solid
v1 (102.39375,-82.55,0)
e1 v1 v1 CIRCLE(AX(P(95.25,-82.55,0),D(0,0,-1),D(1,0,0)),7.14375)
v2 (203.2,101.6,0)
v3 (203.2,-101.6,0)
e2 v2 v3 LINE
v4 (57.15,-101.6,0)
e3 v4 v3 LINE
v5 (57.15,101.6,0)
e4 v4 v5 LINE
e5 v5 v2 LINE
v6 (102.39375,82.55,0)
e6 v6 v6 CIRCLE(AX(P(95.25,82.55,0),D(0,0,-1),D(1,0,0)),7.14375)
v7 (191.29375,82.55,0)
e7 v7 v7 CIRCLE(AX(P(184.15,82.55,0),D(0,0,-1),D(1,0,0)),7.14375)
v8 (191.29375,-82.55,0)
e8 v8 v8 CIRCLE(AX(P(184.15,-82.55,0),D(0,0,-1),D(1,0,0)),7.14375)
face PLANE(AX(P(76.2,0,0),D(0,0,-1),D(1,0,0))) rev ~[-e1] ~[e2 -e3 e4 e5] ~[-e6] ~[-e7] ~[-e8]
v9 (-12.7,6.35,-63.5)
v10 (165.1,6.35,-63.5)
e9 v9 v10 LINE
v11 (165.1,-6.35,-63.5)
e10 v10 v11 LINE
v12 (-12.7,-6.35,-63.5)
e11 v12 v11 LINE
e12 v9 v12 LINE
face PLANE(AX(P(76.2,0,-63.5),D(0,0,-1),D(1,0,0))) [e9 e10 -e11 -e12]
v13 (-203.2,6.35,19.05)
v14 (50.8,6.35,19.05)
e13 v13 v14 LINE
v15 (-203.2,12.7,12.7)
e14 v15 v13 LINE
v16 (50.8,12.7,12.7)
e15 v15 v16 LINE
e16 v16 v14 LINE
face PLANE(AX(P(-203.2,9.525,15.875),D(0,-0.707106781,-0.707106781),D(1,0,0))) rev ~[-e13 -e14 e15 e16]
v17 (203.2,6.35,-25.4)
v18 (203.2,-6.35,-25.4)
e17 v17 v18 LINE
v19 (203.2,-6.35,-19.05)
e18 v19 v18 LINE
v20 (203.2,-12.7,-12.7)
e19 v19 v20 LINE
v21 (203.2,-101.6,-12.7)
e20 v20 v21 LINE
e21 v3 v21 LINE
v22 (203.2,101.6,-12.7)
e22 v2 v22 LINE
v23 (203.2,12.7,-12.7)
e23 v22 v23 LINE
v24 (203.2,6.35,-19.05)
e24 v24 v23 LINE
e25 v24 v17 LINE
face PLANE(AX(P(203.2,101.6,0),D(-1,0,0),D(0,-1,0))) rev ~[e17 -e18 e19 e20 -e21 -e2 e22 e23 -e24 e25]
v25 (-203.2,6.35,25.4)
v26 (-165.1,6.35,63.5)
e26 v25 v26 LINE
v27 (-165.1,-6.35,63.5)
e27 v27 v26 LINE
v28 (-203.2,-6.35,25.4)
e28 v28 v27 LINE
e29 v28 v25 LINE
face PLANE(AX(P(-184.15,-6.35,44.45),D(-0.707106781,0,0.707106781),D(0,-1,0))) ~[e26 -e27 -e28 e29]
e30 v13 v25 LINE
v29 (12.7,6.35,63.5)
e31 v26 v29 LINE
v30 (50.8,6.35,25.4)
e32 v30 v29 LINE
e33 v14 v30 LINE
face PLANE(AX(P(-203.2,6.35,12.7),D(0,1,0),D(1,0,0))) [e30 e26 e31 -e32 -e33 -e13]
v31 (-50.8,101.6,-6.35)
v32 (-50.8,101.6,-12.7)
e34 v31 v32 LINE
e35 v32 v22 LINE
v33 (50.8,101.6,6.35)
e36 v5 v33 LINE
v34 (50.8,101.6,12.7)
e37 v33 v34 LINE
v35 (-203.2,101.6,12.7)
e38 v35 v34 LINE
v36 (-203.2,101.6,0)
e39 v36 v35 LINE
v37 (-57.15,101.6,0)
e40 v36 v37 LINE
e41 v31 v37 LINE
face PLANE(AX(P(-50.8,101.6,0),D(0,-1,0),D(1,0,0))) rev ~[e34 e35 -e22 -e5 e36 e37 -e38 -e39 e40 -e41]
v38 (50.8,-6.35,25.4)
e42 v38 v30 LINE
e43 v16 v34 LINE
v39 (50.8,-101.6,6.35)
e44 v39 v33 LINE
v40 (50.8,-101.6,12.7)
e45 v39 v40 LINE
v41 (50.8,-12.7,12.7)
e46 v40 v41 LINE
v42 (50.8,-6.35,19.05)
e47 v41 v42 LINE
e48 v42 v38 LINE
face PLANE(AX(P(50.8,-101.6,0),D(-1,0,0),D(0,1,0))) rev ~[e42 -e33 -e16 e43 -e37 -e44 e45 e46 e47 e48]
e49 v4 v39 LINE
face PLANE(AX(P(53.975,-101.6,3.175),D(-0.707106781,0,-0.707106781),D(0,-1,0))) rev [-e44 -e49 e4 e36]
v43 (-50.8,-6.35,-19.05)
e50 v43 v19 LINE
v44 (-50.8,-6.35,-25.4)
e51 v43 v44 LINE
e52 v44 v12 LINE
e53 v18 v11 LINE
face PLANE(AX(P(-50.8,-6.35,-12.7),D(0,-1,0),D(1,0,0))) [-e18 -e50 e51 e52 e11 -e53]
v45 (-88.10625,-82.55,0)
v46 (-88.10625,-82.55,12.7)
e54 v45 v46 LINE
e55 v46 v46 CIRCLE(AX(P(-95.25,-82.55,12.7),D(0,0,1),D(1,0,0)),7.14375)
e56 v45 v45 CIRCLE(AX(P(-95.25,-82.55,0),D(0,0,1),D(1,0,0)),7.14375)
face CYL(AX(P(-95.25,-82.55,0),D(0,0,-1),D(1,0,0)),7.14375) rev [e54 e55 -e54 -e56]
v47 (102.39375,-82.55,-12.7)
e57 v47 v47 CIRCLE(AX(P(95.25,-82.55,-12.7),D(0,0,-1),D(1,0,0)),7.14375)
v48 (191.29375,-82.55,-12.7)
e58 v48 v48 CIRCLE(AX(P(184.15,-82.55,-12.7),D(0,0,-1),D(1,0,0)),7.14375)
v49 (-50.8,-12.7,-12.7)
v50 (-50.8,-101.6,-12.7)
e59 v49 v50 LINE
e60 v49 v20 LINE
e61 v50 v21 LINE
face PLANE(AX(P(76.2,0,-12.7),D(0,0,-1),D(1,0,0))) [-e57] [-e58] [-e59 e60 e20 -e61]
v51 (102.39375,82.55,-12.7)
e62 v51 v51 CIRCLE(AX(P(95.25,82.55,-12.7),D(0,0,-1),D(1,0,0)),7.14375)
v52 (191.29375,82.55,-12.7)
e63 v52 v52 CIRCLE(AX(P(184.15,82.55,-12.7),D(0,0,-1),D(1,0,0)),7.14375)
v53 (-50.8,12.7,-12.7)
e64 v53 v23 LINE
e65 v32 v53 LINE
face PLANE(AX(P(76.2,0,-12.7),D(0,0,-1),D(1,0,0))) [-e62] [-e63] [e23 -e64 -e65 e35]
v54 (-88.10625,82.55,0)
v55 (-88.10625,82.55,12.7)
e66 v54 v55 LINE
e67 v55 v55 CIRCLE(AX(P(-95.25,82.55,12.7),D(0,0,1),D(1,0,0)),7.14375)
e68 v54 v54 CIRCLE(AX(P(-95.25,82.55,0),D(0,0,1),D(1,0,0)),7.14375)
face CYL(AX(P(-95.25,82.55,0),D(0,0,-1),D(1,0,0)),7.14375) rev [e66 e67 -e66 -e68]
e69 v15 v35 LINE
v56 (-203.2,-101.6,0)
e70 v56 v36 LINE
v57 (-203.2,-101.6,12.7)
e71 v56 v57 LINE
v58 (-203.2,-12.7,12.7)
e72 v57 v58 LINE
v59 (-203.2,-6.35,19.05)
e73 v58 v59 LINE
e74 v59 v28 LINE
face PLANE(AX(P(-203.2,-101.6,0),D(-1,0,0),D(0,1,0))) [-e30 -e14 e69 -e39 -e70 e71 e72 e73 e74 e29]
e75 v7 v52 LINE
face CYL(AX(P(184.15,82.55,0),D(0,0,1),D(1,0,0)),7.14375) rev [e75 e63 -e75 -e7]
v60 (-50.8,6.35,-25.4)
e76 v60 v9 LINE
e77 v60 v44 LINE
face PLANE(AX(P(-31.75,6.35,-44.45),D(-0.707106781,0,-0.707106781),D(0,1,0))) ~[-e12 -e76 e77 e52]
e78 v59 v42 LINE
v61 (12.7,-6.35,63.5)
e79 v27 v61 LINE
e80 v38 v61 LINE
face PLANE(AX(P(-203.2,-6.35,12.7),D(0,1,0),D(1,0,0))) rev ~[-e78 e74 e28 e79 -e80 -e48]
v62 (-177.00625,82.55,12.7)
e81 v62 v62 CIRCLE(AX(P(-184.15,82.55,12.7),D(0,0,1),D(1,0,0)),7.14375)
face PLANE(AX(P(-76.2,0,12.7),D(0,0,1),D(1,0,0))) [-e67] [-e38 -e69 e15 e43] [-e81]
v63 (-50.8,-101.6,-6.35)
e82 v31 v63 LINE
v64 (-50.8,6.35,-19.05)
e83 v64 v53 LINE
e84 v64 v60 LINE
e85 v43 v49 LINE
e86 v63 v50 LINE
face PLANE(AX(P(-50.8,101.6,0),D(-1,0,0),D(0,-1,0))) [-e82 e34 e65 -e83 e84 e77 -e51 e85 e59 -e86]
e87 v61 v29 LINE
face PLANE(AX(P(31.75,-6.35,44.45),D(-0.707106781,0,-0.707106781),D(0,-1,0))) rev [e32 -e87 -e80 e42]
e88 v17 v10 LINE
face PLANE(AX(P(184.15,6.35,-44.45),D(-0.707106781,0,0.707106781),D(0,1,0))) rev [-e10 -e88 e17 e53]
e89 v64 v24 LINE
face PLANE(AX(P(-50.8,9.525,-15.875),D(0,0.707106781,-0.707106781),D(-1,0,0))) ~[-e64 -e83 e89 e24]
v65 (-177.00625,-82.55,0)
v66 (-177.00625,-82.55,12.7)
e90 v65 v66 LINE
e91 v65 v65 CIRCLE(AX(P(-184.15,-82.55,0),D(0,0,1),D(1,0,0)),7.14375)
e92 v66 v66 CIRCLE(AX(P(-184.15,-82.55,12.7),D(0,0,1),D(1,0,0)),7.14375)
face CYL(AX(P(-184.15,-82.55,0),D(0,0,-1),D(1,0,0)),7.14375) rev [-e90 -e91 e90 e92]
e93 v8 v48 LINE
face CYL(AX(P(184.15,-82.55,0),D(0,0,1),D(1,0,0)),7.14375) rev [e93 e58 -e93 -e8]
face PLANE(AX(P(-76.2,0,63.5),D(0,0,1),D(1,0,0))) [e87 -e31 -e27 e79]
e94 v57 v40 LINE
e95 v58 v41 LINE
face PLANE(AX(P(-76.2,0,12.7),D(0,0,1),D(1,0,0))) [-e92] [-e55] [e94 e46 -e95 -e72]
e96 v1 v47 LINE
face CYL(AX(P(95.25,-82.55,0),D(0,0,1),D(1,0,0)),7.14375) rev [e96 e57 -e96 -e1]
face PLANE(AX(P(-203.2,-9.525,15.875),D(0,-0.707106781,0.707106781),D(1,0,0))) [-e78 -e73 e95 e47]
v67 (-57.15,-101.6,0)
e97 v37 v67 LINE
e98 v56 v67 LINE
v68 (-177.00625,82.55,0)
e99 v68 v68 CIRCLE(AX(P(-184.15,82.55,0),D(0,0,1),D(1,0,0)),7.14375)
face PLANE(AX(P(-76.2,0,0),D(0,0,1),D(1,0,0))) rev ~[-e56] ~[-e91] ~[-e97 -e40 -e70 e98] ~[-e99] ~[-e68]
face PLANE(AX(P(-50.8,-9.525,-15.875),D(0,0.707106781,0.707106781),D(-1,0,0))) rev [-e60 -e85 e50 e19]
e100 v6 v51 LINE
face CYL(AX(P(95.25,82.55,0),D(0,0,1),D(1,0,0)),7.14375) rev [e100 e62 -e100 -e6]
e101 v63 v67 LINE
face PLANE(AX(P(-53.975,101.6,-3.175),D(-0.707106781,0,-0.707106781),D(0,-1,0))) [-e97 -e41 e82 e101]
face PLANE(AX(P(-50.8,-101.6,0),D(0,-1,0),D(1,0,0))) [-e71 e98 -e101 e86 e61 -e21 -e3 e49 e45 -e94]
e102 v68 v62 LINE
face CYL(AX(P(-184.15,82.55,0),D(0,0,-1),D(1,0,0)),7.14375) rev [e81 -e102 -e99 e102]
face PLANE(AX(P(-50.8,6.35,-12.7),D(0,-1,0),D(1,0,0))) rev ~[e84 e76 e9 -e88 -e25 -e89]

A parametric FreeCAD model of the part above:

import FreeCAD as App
import Part
import Sketcher
from FreeCAD import Vector
Q = App.Units.Quantity


def edges_at(feature, points):
    """Names of the edges that pass closest to the given points."""
    edges = feature.Shape.Edges
    near = lambda p: min(range(len(edges)), key=lambda i: edges[i].distToShape(Part.Vertex(*p))[0])
    return sorted({f"Edge{near(p) + 1}" for p in points})


def add_polygon(sketch, points):
    """Adds a closed chain of lines whose ends are joined by coincident constraints."""
    first, n = sketch.GeometryCount, len(points)
    for a, b in zip(points, points[1:] + points[:1]):
        sketch.addGeometry(Part.LineSegment(App.Vector(*a, 0), App.Vector(*b, 0)), False)
    for i in range(n):
        sketch.addConstraint(Sketcher.Constraint("Coincident", first + i, 2, first + (i + 1) % n, 1))

doc = App.newDocument("Part")
body = doc.addObject("PartDesign::Body", "Body")

sketch1 = body.newObject("Sketcher::SketchObject", "Sketch")
sketch1.AttachmentSupport = (doc.getObject("XY_Plane"), [""])
sketch1.MapMode = "FlatFace"
add_polygon(sketch1, [(-203.2, 101.6), (-203.2, -101.6), (50.8, -101.6), (50.8, 101.6)])
sketch1.addGeometry(Part.Circle(Vector(-184.15, -82.55, 0), Vector(0, 0, 1), 7.14375), False)
sketch1.addGeometry(Part.Circle(Vector(-95.25, -82.55, 0), Vector(0, 0, 1), 7.14375), False)
sketch1.addGeometry(Part.Circle(Vector(-184.15, 82.55, 0), Vector(0, 0, 1), 7.14375), False)
sketch1.addGeometry(Part.Circle(Vector(-95.25, 82.55, 0), Vector(0, 0, 1), 7.14375), False)
sketch1.addConstraint(Sketcher.Constraint("Vertical", 0))
sketch1.addConstraint(Sketcher.Constraint("Horizontal", 1))
sketch1.addConstraint(Sketcher.Constraint("Vertical", 2))
sketch1.addConstraint(Sketcher.Constraint("Horizontal", 3))
sketch1.addConstraint(Sketcher.Constraint("Equal", 4, 5))
sketch1.addConstraint(Sketcher.Constraint("Equal", 5, 6))
sketch1.addConstraint(Sketcher.Constraint("Equal", 6, 7))
sketch1.addConstraint(Sketcher.Constraint("Symmetric", 4, 3, 6, 3, -1))
sketch1.addConstraint(Sketcher.Constraint("Symmetric", 5, 3, 7, 3, -1))
sketch1.addConstraint(Sketcher.Constraint("Horizontal", 4, 3, 5, 3))
sketch1.addConstraint(Sketcher.Constraint("DistanceX", 1, 1, 1, 2, Q("10 in")))
sketch1.addConstraint(Sketcher.Constraint("DistanceY", 0, 2, 0, 1, Q("8 in")))
sketch1.addConstraint(Sketcher.Constraint("Diameter", 4, Q("0.5625 in")))
sketch1.addConstraint(Sketcher.Constraint("DistanceX", 0, 2, -1, 1, Q("8 in")))
sketch1.addConstraint(Sketcher.Constraint("DistanceY", 0, 2, -1, 1, Q("4 in")))
sketch1.addConstraint(Sketcher.Constraint("DistanceX", 4, 3, 5, 3, Q("3.5 in")))
sketch1.addConstraint(Sketcher.Constraint("DistanceY", 4, 3, 6, 3, Q("6.5 in")))
sketch1.addConstraint(Sketcher.Constraint("DistanceX", 4, 3, -1, 1, Q("7.25 in")))
pad1 = body.newObject("PartDesign::Pad", "Pad")
pad1.Profile = sketch1
pad1.Length = Q("0.5 in")

sketch2 = body.newObject("Sketcher::SketchObject", "Sketch001")
sketch2.AttachmentSupport = (doc.getObject("XY_Plane"), [""])
sketch2.MapMode = "FlatFace"
add_polygon(sketch2, [(-50.8, -101.6), (-50.8, 101.6), (203.2, 101.6), (203.2, -101.6)])
sketch2.addGeometry(Part.Circle(Vector(95.25, 82.55, 0), Vector(0, 0, 1), 7.14375), False)
sketch2.addGeometry(Part.Circle(Vector(184.15, 82.55, 0), Vector(0, 0, 1), 7.14375), False)
sketch2.addGeometry(Part.Circle(Vector(95.25, -82.55, 0), Vector(0, 0, 1), 7.14375), False)
sketch2.addGeometry(Part.Circle(Vector(184.15, -82.55, 0), Vector(0, 0, 1), 7.14375), False)
sketch2.addConstraint(Sketcher.Constraint("Vertical", 0))
sketch2.addConstraint(Sketcher.Constraint("Horizontal", 1))
sketch2.addConstraint(Sketcher.Constraint("Vertical", 2))
sketch2.addConstraint(Sketcher.Constraint("Horizontal", 3))
sketch2.addConstraint(Sketcher.Constraint("Equal", 4, 5))
sketch2.addConstraint(Sketcher.Constraint("Equal", 5, 6))
sketch2.addConstraint(Sketcher.Constraint("Equal", 6, 7))
sketch2.addConstraint(Sketcher.Constraint("Symmetric", 4, 3, 6, 3, -1))
sketch2.addConstraint(Sketcher.Constraint("Symmetric", 5, 3, 7, 3, -1))
sketch2.addConstraint(Sketcher.Constraint("Horizontal", 4, 3, 5, 3))
sketch2.addConstraint(Sketcher.Constraint("DistanceX", 1, 1, 1, 2, Q("10 in")))
sketch2.addConstraint(Sketcher.Constraint("DistanceY", 0, 1, 0, 2, Q("8 in")))
sketch2.addConstraint(Sketcher.Constraint("Diameter", 4, Q("0.5625 in")))
sketch2.addConstraint(Sketcher.Constraint("DistanceX", 0, 2, -1, 1, Q("2 in")))
sketch2.addConstraint(Sketcher.Constraint("DistanceY", -1, 1, 0, 2, Q("4 in")))
sketch2.addConstraint(Sketcher.Constraint("DistanceX", 4, 3, 5, 3, Q("3.5 in")))
sketch2.addConstraint(Sketcher.Constraint("DistanceY", 6, 3, 4, 3, Q("6.5 in")))
sketch2.addConstraint(Sketcher.Constraint("DistanceX", -1, 1, 4, 3, Q("3.75 in")))
pad2 = body.newObject("PartDesign::Pad", "Pad001")
pad2.Profile = sketch2
pad2.Length = Q("0.5 in")
pad2.Reversed = True

sketch3 = body.newObject("Sketcher::SketchObject", "Sketch002")
sketch3.AttachmentSupport = (doc.getObject("XY_Plane"), [""])
sketch3.MapMode = "FlatFace"
sketch3.AttachmentOffset = App.Placement(Vector(0, 0, 0.5 * 25.4), App.Rotation())
add_polygon(sketch3, [(-203.2, 6.35), (-203.2, -6.35), (50.8, -6.35), (50.8, 6.35)])
sketch3.addConstraint(Sketcher.Constraint("Vertical", 0))
sketch3.addConstraint(Sketcher.Constraint("Horizontal", 1))
sketch3.addConstraint(Sketcher.Constraint("Vertical", 2))
sketch3.addConstraint(Sketcher.Constraint("Horizontal", 3))
sketch3.addConstraint(Sketcher.Constraint("DistanceX", 1, 1, 1, 2, Q("10 in")))
sketch3.addConstraint(Sketcher.Constraint("DistanceY", 0, 2, 0, 1, Q("0.5 in")))
sketch3.addConstraint(Sketcher.Constraint("DistanceX", 0, 2, -1, 1, Q("8 in")))
sketch3.addConstraint(Sketcher.Constraint("DistanceY", 0, 2, -1, 1, Q("0.25 in")))
pad3 = body.newObject("PartDesign::Pad", "Pad002")
pad3.Profile = sketch3
pad3.Length = Q("2 in")
doc.recompute()

chamfer = body.newObject("PartDesign::Chamfer", "Chamfer")
chamfer.Base = (pad3, edges_at(pad3, [(-203.2, 0, 63.5), (50.8, 0, 63.5)]))
chamfer.Size = Q("1.5 in")

sketch4 = body.newObject("Sketcher::SketchObject", "Sketch003")
sketch4.AttachmentSupport = (doc.getObject("XY_Plane"), [""])
sketch4.MapMode = "FlatFace"
sketch4.AttachmentOffset = App.Placement(Vector(0, 0, -0.5 * 25.4), App.Rotation())
add_polygon(sketch4, [(-50.8, -6.35), (-50.8, 6.35), (203.2, 6.35), (203.2, -6.35)])
sketch4.addConstraint(Sketcher.Constraint("Vertical", 0))
sketch4.addConstraint(Sketcher.Constraint("Horizontal", 1))
sketch4.addConstraint(Sketcher.Constraint("Vertical", 2))
sketch4.addConstraint(Sketcher.Constraint("Horizontal", 3))
sketch4.addConstraint(Sketcher.Constraint("DistanceX", 1, 1, 1, 2, Q("10 in")))
sketch4.addConstraint(Sketcher.Constraint("DistanceY", 0, 1, 0, 2, Q("0.5 in")))
sketch4.addConstraint(Sketcher.Constraint("DistanceX", 0, 2, -1, 1, Q("2 in")))
sketch4.addConstraint(Sketcher.Constraint("DistanceY", -1, 1, 0, 2, Q("0.25 in")))
pad4 = body.newObject("PartDesign::Pad", "Pad003")
pad4.Profile = sketch4
pad4.Length = Q("2 in")
pad4.Reversed = True
doc.recompute()

chamfer2 = body.newObject("PartDesign::Chamfer", "Chamfer001")
chamfer2.Base = (pad4, edges_at(pad4, [(203.2, 0, -63.5), (-50.8, 0, -63.5)]))
chamfer2.Size = Q("1.5 in")
doc.recompute()

chamfer3 = body.newObject("PartDesign::Chamfer", "Chamfer002")
chamfer3.Base = (chamfer2, edges_at(chamfer2, [
    (50.8, 0, 0),
    (-76.2, -6.35, 12.7),
    (-76.2, 6.35, 12.7),
    (-50.8, 0, 0),
    (76.2, 6.35, -12.7),
    (76.2, -6.35, -12.7),
]))
chamfer3.Size = Q("0.25 in")

doc.recompute()
